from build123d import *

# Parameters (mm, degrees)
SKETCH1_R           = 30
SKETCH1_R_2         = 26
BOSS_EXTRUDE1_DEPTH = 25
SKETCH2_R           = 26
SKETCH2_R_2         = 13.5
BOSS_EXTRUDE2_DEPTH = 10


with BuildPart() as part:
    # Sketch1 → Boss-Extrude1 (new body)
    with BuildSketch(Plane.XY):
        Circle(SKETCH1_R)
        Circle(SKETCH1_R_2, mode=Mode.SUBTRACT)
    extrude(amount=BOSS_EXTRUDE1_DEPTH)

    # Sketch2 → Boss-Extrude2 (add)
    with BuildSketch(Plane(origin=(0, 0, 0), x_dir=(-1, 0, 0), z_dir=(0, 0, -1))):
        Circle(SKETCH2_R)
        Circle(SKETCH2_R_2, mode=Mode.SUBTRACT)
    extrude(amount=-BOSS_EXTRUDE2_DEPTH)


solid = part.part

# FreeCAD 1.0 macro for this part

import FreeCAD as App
import Part
import Sketcher
Q = App.Units.Quantity

doc = App.newDocument("Part")
body = doc.addObject("PartDesign::Body", "Body")

sketch1 = body.newObject("Sketcher::SketchObject", "Sketch")
sketch1.AttachmentSupport = (doc.getObject("XY_Plane"), [""])
sketch1.MapMode = "FlatFace"
sketch1.addGeometry([
    Part.Circle(App.Vector(0, 0, 0), App.Vector(0, 0, 1), 30),
    Part.Circle(App.Vector(0, 0, 0), App.Vector(0, 0, 1), 26),
], False)
sketch1.addConstraint([
    Sketcher.Constraint("Coincident", 0, 3, -1, 1),
    Sketcher.Constraint("Coincident", 1, 3, -1, 1),
    Sketcher.Constraint("Diameter", 0, Q("60 mm")),
    Sketcher.Constraint("Diameter", 1, Q("52 mm")),
])
pad1 = body.newObject("PartDesign::Pad", "Pad")
pad1.Profile = sketch1
pad1.Length = 25

sketch2 = body.newObject("Sketcher::SketchObject", "Sketch001")
sketch2.AttachmentSupport = (doc.getObject("XY_Plane"), [""])
sketch2.MapMode = "FlatFace"
sketch2.addGeometry([
    Part.Circle(App.Vector(0, 0, 0), App.Vector(0, 0, 1), 26),
    Part.Circle(App.Vector(0, 0, 0), App.Vector(0, 0, 1), 13.5),
], False)
sketch2.addConstraint([
    Sketcher.Constraint("Coincident", 0, 3, -1, 1),
    Sketcher.Constraint("Coincident", 1, 3, -1, 1),
    Sketcher.Constraint("Diameter", 0, Q("52 mm")),
    Sketcher.Constraint("Diameter", 1, Q("27 mm")),
])
pad2 = body.newObject("PartDesign::Pad", "Pad001")
pad2.Profile = sketch2
pad2.Length = 10

doc.recompute()
